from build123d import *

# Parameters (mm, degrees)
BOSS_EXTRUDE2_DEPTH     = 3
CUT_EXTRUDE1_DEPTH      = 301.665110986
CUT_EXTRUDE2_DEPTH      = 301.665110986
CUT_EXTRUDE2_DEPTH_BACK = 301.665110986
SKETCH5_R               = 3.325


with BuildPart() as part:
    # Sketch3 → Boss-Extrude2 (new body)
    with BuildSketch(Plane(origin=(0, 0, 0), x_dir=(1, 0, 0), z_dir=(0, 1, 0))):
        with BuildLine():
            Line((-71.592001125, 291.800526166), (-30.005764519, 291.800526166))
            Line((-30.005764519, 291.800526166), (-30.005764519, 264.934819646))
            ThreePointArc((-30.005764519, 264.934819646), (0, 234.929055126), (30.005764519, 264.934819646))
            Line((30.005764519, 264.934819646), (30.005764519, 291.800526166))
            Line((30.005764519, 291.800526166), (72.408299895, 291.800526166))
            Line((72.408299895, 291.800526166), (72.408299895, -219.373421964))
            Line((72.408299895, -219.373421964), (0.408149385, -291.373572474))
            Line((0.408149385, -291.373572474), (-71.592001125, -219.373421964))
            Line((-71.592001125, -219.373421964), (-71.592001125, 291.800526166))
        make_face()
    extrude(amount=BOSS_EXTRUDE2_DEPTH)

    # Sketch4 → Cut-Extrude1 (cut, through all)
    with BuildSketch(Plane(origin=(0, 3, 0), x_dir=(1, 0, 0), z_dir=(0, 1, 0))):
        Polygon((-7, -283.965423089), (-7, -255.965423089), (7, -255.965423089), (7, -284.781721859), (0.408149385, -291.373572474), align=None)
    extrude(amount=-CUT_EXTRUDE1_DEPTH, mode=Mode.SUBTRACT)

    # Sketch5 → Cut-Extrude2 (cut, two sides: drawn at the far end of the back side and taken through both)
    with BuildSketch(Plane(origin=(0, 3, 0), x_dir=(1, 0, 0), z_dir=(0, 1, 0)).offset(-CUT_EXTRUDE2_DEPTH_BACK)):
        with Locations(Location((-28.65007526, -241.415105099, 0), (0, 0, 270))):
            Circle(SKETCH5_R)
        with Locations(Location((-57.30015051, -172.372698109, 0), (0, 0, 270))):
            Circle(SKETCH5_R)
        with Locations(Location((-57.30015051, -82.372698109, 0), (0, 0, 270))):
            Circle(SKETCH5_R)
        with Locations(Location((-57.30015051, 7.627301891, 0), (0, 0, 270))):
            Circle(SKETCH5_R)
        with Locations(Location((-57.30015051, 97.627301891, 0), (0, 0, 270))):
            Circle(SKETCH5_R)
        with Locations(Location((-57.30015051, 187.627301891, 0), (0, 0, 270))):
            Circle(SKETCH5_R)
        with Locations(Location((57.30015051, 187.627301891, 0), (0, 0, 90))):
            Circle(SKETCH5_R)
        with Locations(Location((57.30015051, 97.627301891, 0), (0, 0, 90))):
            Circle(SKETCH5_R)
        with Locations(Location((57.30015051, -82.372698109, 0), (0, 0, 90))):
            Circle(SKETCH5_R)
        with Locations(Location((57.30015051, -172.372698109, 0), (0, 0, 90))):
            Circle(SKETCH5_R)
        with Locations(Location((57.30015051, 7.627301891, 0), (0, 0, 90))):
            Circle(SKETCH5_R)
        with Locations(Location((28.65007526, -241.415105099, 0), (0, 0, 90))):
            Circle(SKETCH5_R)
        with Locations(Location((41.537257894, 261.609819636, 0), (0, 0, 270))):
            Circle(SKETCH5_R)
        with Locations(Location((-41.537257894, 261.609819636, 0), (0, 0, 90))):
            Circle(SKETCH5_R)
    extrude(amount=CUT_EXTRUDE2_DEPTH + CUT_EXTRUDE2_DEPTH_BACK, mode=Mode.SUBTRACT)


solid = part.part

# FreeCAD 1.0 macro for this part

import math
import FreeCAD as App
import Part
import Sketcher
Q = App.Units.Quantity


def add_polygon(sketch, points):
    """Adds a closed chain of lines whose ends are joined by coincident constraints."""
    first, n = sketch.GeometryCount, len(points)
    for a, b in zip(points, points[1:] + points[:1]):
        sketch.addGeometry(Part.LineSegment(App.Vector(*a, 0), App.Vector(*b, 0)), False)
    for i in range(n):
        sketch.addConstraint(Sketcher.Constraint("Coincident", first + i, 2, first + (i + 1) % n, 1))

doc = App.newDocument("Part")
body = doc.addObject("PartDesign::Body", "Body")

# Sketch on XZ plane
sketch1 = body.newObject("Sketcher::SketchObject", "Sketch")
sketch1.AttachmentSupport = (doc.getObject("XZ_Plane"), [""])
sketch1.MapMode = "FlatFace"
sketch1.addGeometry(Part.LineSegment(App.Vector(-30, -292, 0), App.Vector(-72, -292, 0)), False)
sketch1.addGeometry(Part.LineSegment(App.Vector(-72, -292, 0), App.Vector(-72, 219, 0)), False)
sketch1.addGeometry(Part.LineSegment(App.Vector(-72, 219, 0), App.Vector(0, 291, 0)), False)
sketch1.addGeometry(Part.LineSegment(App.Vector(0, 291, 0), App.Vector(72, 219, 0)), False)
sketch1.addGeometry(Part.LineSegment(App.Vector(72, 219, 0), App.Vector(72, -292, 0)), False)
sketch1.addGeometry(Part.LineSegment(App.Vector(72, -292, 0), App.Vector(30, -292, 0)), False)
sketch1.addGeometry(Part.LineSegment(App.Vector(30, -292, 0), App.Vector(30, -265, 0)), False)
sketch1.addGeometry(Part.ArcOfCircle(Part.Circle(App.Vector(0, -265, 0), App.Vector(0, 0, 1), 30), math.radians(0), math.radians(180)), False)
sketch1.addGeometry(Part.LineSegment(App.Vector(-30, -265, 0), App.Vector(-30, -292, 0)), False)
sketch1.addConstraint(Sketcher.Constraint("Coincident", 0, 2, 1, 1))
sketch1.addConstraint(Sketcher.Constraint("Coincident", 1, 2, 2, 1))
sketch1.addConstraint(Sketcher.Constraint("Coincident", 2, 2, 3, 1))
sketch1.addConstraint(Sketcher.Constraint("Coincident", 3, 2, 4, 1))
sketch1.addConstraint(Sketcher.Constraint("Coincident", 4, 2, 5, 1))
sketch1.addConstraint(Sketcher.Constraint("Coincident", 5, 2, 6, 1))
sketch1.addConstraint(Sketcher.Constraint("Tangent", 6, 2, 7, 1))
sketch1.addConstraint(Sketcher.Constraint("Tangent", 7, 2, 8, 1))
sketch1.addConstraint(Sketcher.Constraint("Coincident", 8, 2, 0, 1))
sketch1.addConstraint(Sketcher.Constraint("Horizontal", 0))
sketch1.addConstraint(Sketcher.Constraint("Vertical", 1))
sketch1.addConstraint(Sketcher.Constraint("Vertical", 4))
sketch1.addConstraint(Sketcher.Constraint("Horizontal", 5))
sketch1.addConstraint(Sketcher.Constraint("Vertical", 6))
sketch1.addConstraint(Sketcher.Constraint("Vertical", 8))
sketch1.addConstraint(Sketcher.Constraint("Symmetric", 5, 2, 8, 2, -2))
sketch1.addConstraint(Sketcher.Constraint("Perpendicular", 2, 3))
sketch1.addConstraint(Sketcher.Constraint("Horizontal", 1, 2, 3, 2))
sketch1.addConstraint(Sketcher.Constraint("Equal", 2, 3))
sketch1.addConstraint(Sketcher.Constraint("DistanceX", 0, 2, -1, 1, Q("71.592001 mm")))
sketch1.addConstraint(Sketcher.Constraint("Radius", 7, Q("30.005765 mm")))
sketch1.addConstraint(Sketcher.Constraint("DistanceY", 1, 1, 1, 2, Q("511.173948 mm")))
sketch1.addConstraint(Sketcher.Constraint("DistanceX", -1, 1, 3, 2, Q("72.4083 mm")))
sketch1.addConstraint(Sketcher.Constraint("DistanceY", 6, 1, 6, 2, Q("26.865707 mm")))
sketch1.addConstraint(Sketcher.Constraint("DistanceY", 7, 3, -1, 1, Q("264.93482 mm")))
pad1 = body.newObject("PartDesign::Pad", "Pad")
pad1.Profile = sketch1
pad1.Length = 3
pad1.Reversed = True

# Sketch on XZ plane
sketch2 = body.newObject("Sketcher::SketchObject", "Sketch001")
sketch2.AttachmentSupport = (doc.getObject("XZ_Plane"), [""])
sketch2.MapMode = "FlatFace"
sketch2.AttachmentOffset = App.Placement(App.Vector(0, 0, -3), App.Rotation())
add_polygon(sketch2, [(-7, 256), (-7, 284), (0, 291), (7, 285), (7, 256)])  # lines 0-4
sketch2.addConstraint(Sketcher.Constraint("Vertical", 0))
sketch2.addConstraint(Sketcher.Constraint("Vertical", 3))
sketch2.addConstraint(Sketcher.Constraint("Horizontal", 4))
sketch2.addConstraint(Sketcher.Constraint("Perpendicular", 1, 2))
sketch2.addConstraint(Sketcher.Constraint("DistanceX", 4, 2, 4, 1, Q("14 mm")))
sketch2.addConstraint(Sketcher.Constraint("DistanceY", 0, 1, 0, 2, Q("28 mm")))
sketch2.addConstraint(Sketcher.Constraint("Angle", 1, Q("45 deg")))
sketch2.addConstraint(Sketcher.Constraint("DistanceX", 0, 2, -1, 1, Q("7 mm")))
sketch2.addConstraint(Sketcher.Constraint("DistanceY", 3, 2, 3, 1, Q("28.816299 mm")))
sketch2.addConstraint(Sketcher.Constraint("DistanceY", -1, 1, 2, 2, Q("284.781722 mm")))
pocket1 = body.newObject("PartDesign::Pocket", "Pocket")
pocket1.Profile = sketch2
pocket1.Type = "ThroughAll"
pocket1.Reversed = True

# Sketch on XZ plane
sketch3 = body.newObject("Sketcher::SketchObject", "Sketch002")
sketch3.AttachmentSupport = (doc.getObject("XZ_Plane"), [""])
sketch3.MapMode = "FlatFace"
sketch3.AttachmentOffset = App.Placement(App.Vector(0, 0, -3), App.Rotation())
sketch3.addGeometry(Part.Circle(App.Vector(-28.7, 241.4, 0), App.Vector(0, 0, 1), 3.3), False)
sketch3.addGeometry(Part.Circle(App.Vector(-57.3, 172.4, 0), App.Vector(0, 0, 1), 3.3), False)
sketch3.addGeometry(Part.Circle(App.Vector(-57.3, 82.4, 0), App.Vector(0, 0, 1), 3.3), False)
sketch3.addGeometry(Part.Circle(App.Vector(-57.3, -7.6, 0), App.Vector(0, 0, 1), 3.3), False)
sketch3.addGeometry(Part.Circle(App.Vector(-57.3, -97.6, 0), App.Vector(0, 0, 1), 3.3), False)
sketch3.addGeometry(Part.Circle(App.Vector(-57.3, -187.6, 0), App.Vector(0, 0, 1), 3.3), False)
sketch3.addGeometry(Part.Circle(App.Vector(57.3, -187.6, 0), App.Vector(0, 0, 1), 3.3), False)
sketch3.addGeometry(Part.Circle(App.Vector(57.3, -97.6, 0), App.Vector(0, 0, 1), 3.3), False)
sketch3.addGeometry(Part.Circle(App.Vector(57.3, 82.4, 0), App.Vector(0, 0, 1), 3.3), False)
sketch3.addGeometry(Part.Circle(App.Vector(57.3, 172.4, 0), App.Vector(0, 0, 1), 3.3), False)
sketch3.addGeometry(Part.Circle(App.Vector(57.3, -7.6, 0), App.Vector(0, 0, 1), 3.3), False)
sketch3.addGeometry(Part.Circle(App.Vector(28.7, 241.4, 0), App.Vector(0, 0, 1), 3.3), False)
sketch3.addGeometry(Part.Circle(App.Vector(41.5, -261.6, 0), App.Vector(0, 0, 1), 3.3), False)
sketch3.addGeometry(Part.Circle(App.Vector(-41.5, -261.6, 0), App.Vector(0, 0, 1), 3.3), False)
sketch3.addConstraint(Sketcher.Constraint("Equal", 0, 1))
sketch3.addConstraint(Sketcher.Constraint("Equal", 1, 2))
sketch3.addConstraint(Sketcher.Constraint("Equal", 2, 3))
sketch3.addConstraint(Sketcher.Constraint("Equal", 3, 4))
sketch3.addConstraint(Sketcher.Constraint("Equal", 4, 5))
sketch3.addConstraint(Sketcher.Constraint("Equal", 5, 6))
sketch3.addConstraint(Sketcher.Constraint("Equal", 6, 7))
sketch3.addConstraint(Sketcher.Constraint("Equal", 7, 8))
sketch3.addConstraint(Sketcher.Constraint("Equal", 8, 9))
sketch3.addConstraint(Sketcher.Constraint("Equal", 9, 10))
sketch3.addConstraint(Sketcher.Constraint("Equal", 10, 11))
sketch3.addConstraint(Sketcher.Constraint("Equal", 11, 12))
sketch3.addConstraint(Sketcher.Constraint("Equal", 12, 13))
sketch3.addConstraint(Sketcher.Constraint("Symmetric", 5, 3, 6, 3, -2))
sketch3.addConstraint(Sketcher.Constraint("Symmetric", 4, 3, 7, 3, -2))
sketch3.addConstraint(Sketcher.Constraint("Symmetric", 2, 3, 8, 3, -2))
sketch3.addConstraint(Sketcher.Constraint("Symmetric", 1, 3, 9, 3, -2))
sketch3.addConstraint(Sketcher.Constraint("Symmetric", 3, 3, 10, 3, -2))
sketch3.addConstraint(Sketcher.Constraint("Symmetric", 0, 3, 11, 3, -2))
sketch3.addConstraint(Sketcher.Constraint("Symmetric", 12, 3, 13, 3, -2))
sketch3.addConstraint(Sketcher.Constraint("Vertical", 1, 3, 2, 3))
sketch3.addConstraint(Sketcher.Constraint("Vertical", 2, 3, 3, 3))
sketch3.addConstraint(Sketcher.Constraint("Vertical", 3, 3, 4, 3))
sketch3.addConstraint(Sketcher.Constraint("Vertical", 4, 3, 5, 3))
sketch3.addConstraint(Sketcher.Constraint("Diameter", 0, Q("6.65 mm")))
sketch3.addConstraint(Sketcher.Constraint("DistanceY", 2, 3, 1, 3, Q("90 mm")))
sketch3.addConstraint(Sketcher.Constraint("DistanceY", 3, 3, 2, 3, Q("90 mm")))
sketch3.addConstraint(Sketcher.Constraint("DistanceY", 4, 3, 3, 3, Q("90 mm")))
sketch3.addConstraint(Sketcher.Constraint("DistanceY", 5, 3, 4, 3, Q("90 mm")))
sketch3.addConstraint(Sketcher.Constraint("DistanceY", -1, 1, 1, 3, Q("172.372698 mm")))
sketch3.addConstraint(Sketcher.Constraint("DistanceX", 5, 3, 6, 3, Q("114.600301 mm")))
sketch3.addConstraint(Sketcher.Constraint("DistanceY", 12, 3, -1, 1, Q("261.60982 mm")))
sketch3.addConstraint(Sketcher.Constraint("DistanceX", 0, 3, 11, 3, Q("57.300151 mm")))
sketch3.addConstraint(Sketcher.Constraint("DistanceX", 5, 3, 12, 3, Q("98.837408 mm")))
sketch3.addConstraint(Sketcher.Constraint("DistanceY", -1, 1, 0, 3, Q("241.415105 mm")))
pocket2 = body.newObject("PartDesign::Pocket", "Pocket001")
pocket2.Profile = sketch3
pocket2.Type = "ThroughAll"
pocket2.Midplane = True

doc.recompute()
